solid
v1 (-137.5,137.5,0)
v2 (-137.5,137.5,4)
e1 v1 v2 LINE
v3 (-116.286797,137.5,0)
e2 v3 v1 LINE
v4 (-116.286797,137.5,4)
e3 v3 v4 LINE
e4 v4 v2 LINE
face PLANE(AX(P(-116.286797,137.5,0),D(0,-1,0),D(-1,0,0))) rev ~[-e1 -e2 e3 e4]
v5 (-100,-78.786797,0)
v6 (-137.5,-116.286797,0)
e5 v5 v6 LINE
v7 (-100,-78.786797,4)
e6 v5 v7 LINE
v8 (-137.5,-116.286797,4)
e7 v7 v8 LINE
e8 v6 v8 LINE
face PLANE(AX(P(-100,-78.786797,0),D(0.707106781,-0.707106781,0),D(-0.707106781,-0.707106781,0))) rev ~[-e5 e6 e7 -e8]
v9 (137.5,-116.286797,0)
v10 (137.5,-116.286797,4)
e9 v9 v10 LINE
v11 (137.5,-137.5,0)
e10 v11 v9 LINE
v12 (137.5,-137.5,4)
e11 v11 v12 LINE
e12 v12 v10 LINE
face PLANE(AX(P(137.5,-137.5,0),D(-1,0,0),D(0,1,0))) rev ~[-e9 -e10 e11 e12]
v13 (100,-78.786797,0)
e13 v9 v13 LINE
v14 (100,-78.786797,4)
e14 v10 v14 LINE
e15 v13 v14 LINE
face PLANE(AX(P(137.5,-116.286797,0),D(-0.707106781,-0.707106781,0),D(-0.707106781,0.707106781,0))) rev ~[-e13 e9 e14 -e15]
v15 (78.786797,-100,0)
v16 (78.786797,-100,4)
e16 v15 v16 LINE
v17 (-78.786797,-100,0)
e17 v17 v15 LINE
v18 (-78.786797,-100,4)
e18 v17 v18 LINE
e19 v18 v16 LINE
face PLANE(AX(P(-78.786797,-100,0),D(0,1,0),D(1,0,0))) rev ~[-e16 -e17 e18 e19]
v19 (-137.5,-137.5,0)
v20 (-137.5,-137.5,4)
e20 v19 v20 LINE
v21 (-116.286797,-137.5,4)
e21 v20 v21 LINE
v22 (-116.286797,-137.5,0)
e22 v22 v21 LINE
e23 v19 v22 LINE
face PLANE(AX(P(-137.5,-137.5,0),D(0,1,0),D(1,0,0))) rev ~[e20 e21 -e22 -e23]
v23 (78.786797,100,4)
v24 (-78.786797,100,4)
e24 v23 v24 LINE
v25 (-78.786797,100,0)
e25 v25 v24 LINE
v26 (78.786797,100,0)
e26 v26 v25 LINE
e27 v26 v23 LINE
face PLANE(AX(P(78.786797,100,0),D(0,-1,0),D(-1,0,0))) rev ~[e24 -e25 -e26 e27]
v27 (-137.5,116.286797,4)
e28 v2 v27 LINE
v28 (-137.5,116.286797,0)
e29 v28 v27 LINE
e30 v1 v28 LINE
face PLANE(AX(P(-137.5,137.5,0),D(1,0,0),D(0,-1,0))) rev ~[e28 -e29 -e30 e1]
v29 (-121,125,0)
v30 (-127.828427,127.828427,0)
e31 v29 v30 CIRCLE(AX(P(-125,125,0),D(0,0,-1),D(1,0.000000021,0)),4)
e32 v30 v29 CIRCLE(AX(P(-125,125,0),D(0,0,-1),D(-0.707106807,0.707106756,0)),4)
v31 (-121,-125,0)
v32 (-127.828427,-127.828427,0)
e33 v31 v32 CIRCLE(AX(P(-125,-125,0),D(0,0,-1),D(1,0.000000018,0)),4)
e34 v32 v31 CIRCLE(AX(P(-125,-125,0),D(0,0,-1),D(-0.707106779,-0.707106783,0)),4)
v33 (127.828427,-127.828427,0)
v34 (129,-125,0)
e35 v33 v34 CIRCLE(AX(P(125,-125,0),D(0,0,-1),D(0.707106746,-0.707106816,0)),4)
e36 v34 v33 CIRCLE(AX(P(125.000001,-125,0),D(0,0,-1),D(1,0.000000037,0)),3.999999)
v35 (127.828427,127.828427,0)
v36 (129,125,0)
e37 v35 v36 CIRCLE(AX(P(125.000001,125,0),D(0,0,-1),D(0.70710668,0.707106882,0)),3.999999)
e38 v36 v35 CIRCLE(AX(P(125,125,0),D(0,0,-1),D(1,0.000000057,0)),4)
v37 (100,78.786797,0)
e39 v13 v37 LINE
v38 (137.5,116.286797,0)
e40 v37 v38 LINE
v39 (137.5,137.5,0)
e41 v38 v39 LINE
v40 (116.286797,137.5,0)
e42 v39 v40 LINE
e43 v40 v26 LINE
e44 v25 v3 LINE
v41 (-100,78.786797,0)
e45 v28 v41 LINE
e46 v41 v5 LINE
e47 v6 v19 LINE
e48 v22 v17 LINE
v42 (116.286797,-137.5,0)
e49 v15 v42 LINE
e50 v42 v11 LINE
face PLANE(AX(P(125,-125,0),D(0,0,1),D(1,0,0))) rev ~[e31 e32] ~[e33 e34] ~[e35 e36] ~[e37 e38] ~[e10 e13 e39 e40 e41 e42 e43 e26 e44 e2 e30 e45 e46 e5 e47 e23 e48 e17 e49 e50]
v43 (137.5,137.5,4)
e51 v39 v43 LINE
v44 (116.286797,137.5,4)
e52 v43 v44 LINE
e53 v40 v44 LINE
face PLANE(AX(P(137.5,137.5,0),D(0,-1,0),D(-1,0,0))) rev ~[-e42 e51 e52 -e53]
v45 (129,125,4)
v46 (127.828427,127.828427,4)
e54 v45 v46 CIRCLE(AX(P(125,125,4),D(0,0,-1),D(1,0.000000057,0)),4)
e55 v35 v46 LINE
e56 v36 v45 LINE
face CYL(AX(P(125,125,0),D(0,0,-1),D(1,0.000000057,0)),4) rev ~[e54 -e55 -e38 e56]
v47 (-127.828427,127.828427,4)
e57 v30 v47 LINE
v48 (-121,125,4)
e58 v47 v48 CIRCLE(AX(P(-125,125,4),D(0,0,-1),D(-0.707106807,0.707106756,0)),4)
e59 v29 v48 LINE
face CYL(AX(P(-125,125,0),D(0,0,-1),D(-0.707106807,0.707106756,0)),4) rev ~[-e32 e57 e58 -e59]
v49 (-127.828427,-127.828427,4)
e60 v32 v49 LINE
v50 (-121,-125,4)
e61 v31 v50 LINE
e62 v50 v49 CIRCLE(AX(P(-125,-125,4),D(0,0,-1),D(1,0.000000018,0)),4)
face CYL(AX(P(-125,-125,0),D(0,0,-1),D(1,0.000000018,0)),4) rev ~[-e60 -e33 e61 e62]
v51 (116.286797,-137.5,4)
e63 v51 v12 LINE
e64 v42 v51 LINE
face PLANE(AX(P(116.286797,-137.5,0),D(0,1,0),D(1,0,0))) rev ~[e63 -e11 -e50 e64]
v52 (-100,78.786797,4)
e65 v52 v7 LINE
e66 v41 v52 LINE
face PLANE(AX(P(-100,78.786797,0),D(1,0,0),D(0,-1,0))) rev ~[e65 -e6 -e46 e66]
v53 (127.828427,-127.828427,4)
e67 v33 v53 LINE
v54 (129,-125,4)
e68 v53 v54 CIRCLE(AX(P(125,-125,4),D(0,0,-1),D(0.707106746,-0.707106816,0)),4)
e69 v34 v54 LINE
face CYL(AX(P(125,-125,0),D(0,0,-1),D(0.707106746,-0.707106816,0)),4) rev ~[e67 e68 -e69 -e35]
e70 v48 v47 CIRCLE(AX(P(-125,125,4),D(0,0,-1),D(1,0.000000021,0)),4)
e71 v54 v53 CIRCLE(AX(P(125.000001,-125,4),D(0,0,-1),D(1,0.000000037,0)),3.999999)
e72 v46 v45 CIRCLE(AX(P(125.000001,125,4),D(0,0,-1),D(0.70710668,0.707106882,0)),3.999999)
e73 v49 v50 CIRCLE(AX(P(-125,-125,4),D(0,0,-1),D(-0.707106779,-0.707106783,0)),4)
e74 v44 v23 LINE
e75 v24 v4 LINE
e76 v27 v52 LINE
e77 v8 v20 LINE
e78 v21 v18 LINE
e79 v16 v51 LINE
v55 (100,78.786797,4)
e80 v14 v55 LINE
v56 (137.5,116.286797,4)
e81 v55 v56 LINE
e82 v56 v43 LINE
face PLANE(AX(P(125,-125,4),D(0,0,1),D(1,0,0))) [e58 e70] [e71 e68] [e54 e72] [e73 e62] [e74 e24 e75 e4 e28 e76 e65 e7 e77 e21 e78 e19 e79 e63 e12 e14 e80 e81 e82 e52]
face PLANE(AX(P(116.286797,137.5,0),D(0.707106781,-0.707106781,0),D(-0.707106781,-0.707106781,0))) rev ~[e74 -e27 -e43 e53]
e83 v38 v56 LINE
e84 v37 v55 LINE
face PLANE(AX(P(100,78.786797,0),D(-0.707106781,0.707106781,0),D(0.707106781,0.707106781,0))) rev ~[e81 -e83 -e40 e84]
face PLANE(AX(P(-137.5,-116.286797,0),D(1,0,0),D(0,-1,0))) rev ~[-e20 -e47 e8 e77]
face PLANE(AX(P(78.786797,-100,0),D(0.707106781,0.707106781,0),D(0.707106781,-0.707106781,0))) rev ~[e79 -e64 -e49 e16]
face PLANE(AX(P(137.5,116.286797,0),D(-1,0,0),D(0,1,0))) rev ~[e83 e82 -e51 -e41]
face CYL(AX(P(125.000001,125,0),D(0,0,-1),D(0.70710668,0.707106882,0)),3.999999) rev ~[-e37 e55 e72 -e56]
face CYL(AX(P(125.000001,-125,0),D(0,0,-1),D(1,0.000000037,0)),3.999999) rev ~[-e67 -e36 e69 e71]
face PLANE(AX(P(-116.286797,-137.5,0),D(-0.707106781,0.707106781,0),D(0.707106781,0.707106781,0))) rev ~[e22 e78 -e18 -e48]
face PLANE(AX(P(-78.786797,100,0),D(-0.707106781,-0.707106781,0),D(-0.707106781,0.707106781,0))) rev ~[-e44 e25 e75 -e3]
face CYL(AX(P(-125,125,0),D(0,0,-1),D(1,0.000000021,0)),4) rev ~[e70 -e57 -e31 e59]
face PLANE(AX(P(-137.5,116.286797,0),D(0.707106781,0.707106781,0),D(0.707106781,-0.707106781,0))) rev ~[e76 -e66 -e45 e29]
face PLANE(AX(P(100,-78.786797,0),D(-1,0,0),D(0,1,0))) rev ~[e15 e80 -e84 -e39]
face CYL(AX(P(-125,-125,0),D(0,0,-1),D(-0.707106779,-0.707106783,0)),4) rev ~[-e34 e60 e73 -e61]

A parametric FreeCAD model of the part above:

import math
import FreeCAD as App
import Part
import Sketcher
from FreeCAD import Vector


def add_polygon(sketch, points):
    """Adds a closed chain of lines whose ends are joined by coincident constraints."""
    first, n = sketch.GeometryCount, len(points)
    for a, b in zip(points, points[1:] + points[:1]):
        sketch.addGeometry(Part.LineSegment(App.Vector(*a, 0), App.Vector(*b, 0)), False)
    for i in range(n):
        sketch.addConstraint(Sketcher.Constraint("Coincident", first + i, 2, first + (i + 1) % n, 1))

doc = App.newDocument("Part")
body = doc.addObject("PartDesign::Body", "Body")

# Sketch on XY plane
sketch1 = body.newObject("Sketcher::SketchObject", "Sketch")
sketch1.AttachmentSupport = (doc.getObject("XY_Plane"), [""])
sketch1.MapMode = "FlatFace"
add_polygon(sketch1, [(116.3, -137.5), (137.5, -137.5), (137.5, -116.3), (100, -78.8), (100, 78.8), (137.5, 116.3), (137.5, 137.5), (116.3, 137.5), (78.8, 100), (-78.8, 100), (-116.3, 137.5), (-137.5, 137.5), (-137.5, 116.3), (-100, 78.8), (-100, -78.8), (-137.5, -116.3), (-137.5, -137.5), (-116.3, -137.5), (-78.8, -100), (78.8, -100)])  # lines 0-19
sketch1.addGeometry(Part.ArcOfCircle(Part.Circle(Vector(-125, -125, 0), Vector(0, 0, 1), 4), math.radians(0), math.radians(225)), False)  # 20
sketch1.addGeometry(Part.ArcOfCircle(Part.Circle(Vector(-125, -125, 0), Vector(0, 0, 1), 4), math.radians(-135), math.radians(0)), False)  # 21
sketch1.addGeometry(Part.ArcOfCircle(Part.Circle(Vector(125, -125, 0), Vector(0, 0, 1), 4), math.radians(0), math.radians(315)), False)  # 22
sketch1.addGeometry(Part.ArcOfCircle(Part.Circle(Vector(125, -125, 0), Vector(0, 0, 1), 4), math.radians(-45), math.radians(0)), False)  # 23
sketch1.addGeometry(Part.ArcOfCircle(Part.Circle(Vector(-125, 125, 0), Vector(0, 0, 1), 4), math.radians(0), math.radians(135)), False)  # 24
sketch1.addGeometry(Part.ArcOfCircle(Part.Circle(Vector(-125, 125, 0), Vector(0, 0, 1), 4), math.radians(135), math.radians(360)), False)  # 25
sketch1.addGeometry(Part.ArcOfCircle(Part.Circle(Vector(125, 125, 0), Vector(0, 0, 1), 4), math.radians(0), math.radians(45)), False)  # 26
sketch1.addGeometry(Part.ArcOfCircle(Part.Circle(Vector(125, 125, 0), Vector(0, 0, 1), 4), math.radians(45), math.radians(360)), False)  # 27
sketch1.addConstraint(Sketcher.Constraint("Tangent", 20, 1, 21, 2))
sketch1.addConstraint(Sketcher.Constraint("Coincident", 21, 1, 20, 2))
sketch1.addConstraint(Sketcher.Constraint("Tangent", 22, 1, 23, 2))
sketch1.addConstraint(Sketcher.Constraint("Coincident", 23, 1, 22, 2))
sketch1.addConstraint(Sketcher.Constraint("Tangent", 24, 1, 25, 2))
sketch1.addConstraint(Sketcher.Constraint("Coincident", 25, 1, 24, 2))
sketch1.addConstraint(Sketcher.Constraint("Tangent", 26, 1, 27, 2))
sketch1.addConstraint(Sketcher.Constraint("Coincident", 27, 1, 26, 2))
sketch1.addConstraint(Sketcher.Constraint("Horizontal", 0))
sketch1.addConstraint(Sketcher.Constraint("Vertical", 1))
sketch1.addConstraint(Sketcher.Constraint("Vertical", 3))
sketch1.addConstraint(Sketcher.Constraint("Vertical", 5))
sketch1.addConstraint(Sketcher.Constraint("Horizontal", 6))
sketch1.addConstraint(Sketcher.Constraint("Horizontal", 8))
sketch1.addConstraint(Sketcher.Constraint("Horizontal", 10))
sketch1.addConstraint(Sketcher.Constraint("Vertical", 11))
sketch1.addConstraint(Sketcher.Constraint("Vertical", 13))
sketch1.addConstraint(Sketcher.Constraint("Vertical", 15))
sketch1.addConstraint(Sketcher.Constraint("Horizontal", 16))
sketch1.addConstraint(Sketcher.Constraint("Horizontal", 18))
sketch1.addConstraint(Sketcher.Constraint("Equal", 21, 22))
sketch1.addConstraint(Sketcher.Constraint("Equal", 23, 24))
sketch1.addConstraint(Sketcher.Constraint("Equal", 25, 26))
sketch1.addConstraint(Sketcher.Constraint("Symmetric", 22, 3, 24, 3, -1, 1))
sketch1.addConstraint(Sketcher.Constraint("Symmetric", 20, 3, 26, 3, -1, 1))
sketch1.addConstraint(Sketcher.Constraint("Symmetric", 0, 2, 10, 2, -1, 1))
sketch1.addConstraint(Sketcher.Constraint("Symmetric", 2, 2, 12, 2, -1, 1))
sketch1.addConstraint(Sketcher.Constraint("Symmetric", 4, 2, 14, 2, -1, 1))
sketch1.addConstraint(Sketcher.Constraint("Symmetric", 6, 2, 16, 2, -1, 1))
sketch1.addConstraint(Sketcher.Constraint("Symmetric", 7, 2, 17, 2, -1, 1))
sketch1.addConstraint(Sketcher.Constraint("Symmetric", 20, 3, 22, 3, -2))
sketch1.addConstraint(Sketcher.Constraint("Symmetric", 6, 2, 9, 2, -2))
sketch1.addConstraint(Sketcher.Constraint("Symmetric", 4, 2, 11, 2, -2))
sketch1.addConstraint(Sketcher.Constraint("Perpendicular", 2, 4))
sketch1.addConstraint(Sketcher.Constraint("Parallel", 4, 7))
sketch1.addConstraint(Sketcher.Constraint("Perpendicular", 7, 9))
sketch1.addConstraint(Sketcher.Constraint("Parallel", 9, 12))
sketch1.addConstraint(Sketcher.Constraint("Perpendicular", 12, 14))
sketch1.addConstraint(Sketcher.Constraint("Perpendicular", 17, 19))
sketch1.addConstraint(Sketcher.Constraint("Horizontal", 3, 2, 12, 2))
sketch1.addConstraint(Sketcher.Constraint("Horizontal", 23, 3, 20, 1))
sketch1.addConstraint(Sketcher.Constraint("Horizontal", 20, 1, 22, 1))
sketch1.addConstraint(Sketcher.Constraint("Horizontal", 21, 1, 23, 1))
sketch1.addConstraint(Sketcher.Constraint("Horizontal", 27, 3, 24, 1))
sketch1.addConstraint(Sketcher.Constraint("Horizontal", 24, 1, 26, 1))
sketch1.addConstraint(Sketcher.Constraint("Horizontal", 25, 1, 27, 1))
sketch1.addConstraint(Sketcher.Constraint("Vertical", 7, 2, 18, 2))
sketch1.addConstraint(Sketcher.Constraint("Vertical", 21, 1, 25, 1))
sketch1.addConstraint(Sketcher.Constraint("Equal", 16, 1))
sketch1.addConstraint(Sketcher.Constraint("Equal", 18, 3))
sketch1.addConstraint(Sketcher.Constraint("Equal", 4, 7))
sketch1.addConstraint(Sketcher.Constraint("Radius", 20, 4.0))
sketch1.addConstraint(Sketcher.Constraint("DistanceX", 20, 3, -1, 1, 125.0))
sketch1.addConstraint(Sketcher.Constraint("DistanceY", 20, 3, -1, 1, 125.0))
sketch1.addConstraint(Sketcher.Constraint("DistanceX", -1, 1, 2, 2, 100.0))
sketch1.addConstraint(Sketcher.Constraint("DistanceX", -1, 1, 0, 2, 137.5))
sketch1.addConstraint(Sketcher.Constraint("DistanceX", 0, 1, 0, 2, 21.213203))
sketch1.addConstraint(Sketcher.Constraint("DistanceY", 21, 1, 14, 2, 11.54163))
pad1 = body.newObject("PartDesign::Pad", "Pad")
pad1.Profile = sketch1
pad1.Length = 4

doc.recompute()
